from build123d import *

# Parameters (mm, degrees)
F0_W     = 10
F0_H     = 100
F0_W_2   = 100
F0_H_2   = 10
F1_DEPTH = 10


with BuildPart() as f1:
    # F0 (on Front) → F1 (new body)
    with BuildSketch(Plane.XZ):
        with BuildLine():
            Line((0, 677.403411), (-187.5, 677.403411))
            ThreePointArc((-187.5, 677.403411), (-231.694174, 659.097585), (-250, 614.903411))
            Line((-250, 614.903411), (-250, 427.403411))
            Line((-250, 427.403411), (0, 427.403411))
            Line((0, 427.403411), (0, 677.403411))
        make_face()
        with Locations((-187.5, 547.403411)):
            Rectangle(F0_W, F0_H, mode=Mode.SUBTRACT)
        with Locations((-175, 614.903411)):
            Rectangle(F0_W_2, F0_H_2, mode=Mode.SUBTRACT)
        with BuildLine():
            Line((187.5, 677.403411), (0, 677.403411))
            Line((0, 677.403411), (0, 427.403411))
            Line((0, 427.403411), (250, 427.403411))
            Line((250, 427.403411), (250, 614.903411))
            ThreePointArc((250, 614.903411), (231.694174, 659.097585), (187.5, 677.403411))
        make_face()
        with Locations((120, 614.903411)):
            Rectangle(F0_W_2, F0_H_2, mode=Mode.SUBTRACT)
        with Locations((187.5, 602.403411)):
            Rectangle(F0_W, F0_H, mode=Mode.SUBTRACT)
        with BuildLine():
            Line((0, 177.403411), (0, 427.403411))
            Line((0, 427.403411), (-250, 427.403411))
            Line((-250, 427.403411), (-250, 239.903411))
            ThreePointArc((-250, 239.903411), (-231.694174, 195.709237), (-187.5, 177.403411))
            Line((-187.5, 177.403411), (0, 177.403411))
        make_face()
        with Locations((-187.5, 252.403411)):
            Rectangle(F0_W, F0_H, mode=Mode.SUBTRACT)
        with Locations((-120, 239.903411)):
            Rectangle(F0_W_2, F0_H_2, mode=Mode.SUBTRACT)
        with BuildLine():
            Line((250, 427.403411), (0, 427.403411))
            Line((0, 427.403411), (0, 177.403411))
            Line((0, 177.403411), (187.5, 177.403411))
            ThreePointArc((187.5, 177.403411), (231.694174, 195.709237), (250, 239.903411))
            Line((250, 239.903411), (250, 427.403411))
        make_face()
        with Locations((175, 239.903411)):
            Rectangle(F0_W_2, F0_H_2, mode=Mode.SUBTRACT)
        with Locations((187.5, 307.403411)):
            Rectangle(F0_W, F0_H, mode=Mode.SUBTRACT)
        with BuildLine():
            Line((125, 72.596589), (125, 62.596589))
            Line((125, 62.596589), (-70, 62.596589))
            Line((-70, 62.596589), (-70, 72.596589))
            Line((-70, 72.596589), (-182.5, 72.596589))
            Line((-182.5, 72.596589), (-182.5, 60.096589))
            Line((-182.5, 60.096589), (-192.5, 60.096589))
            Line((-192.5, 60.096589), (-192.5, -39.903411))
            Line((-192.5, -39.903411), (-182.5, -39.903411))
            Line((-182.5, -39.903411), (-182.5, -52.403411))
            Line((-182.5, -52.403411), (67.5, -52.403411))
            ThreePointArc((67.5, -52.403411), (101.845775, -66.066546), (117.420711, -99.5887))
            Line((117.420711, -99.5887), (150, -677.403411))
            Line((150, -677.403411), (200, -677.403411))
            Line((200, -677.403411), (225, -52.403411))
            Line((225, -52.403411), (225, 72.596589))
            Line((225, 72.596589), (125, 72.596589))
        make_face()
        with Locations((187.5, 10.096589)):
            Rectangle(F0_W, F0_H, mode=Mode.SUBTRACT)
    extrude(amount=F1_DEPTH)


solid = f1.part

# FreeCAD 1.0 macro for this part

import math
import FreeCAD as App
import Part
import Sketcher

V = App.Vector
Q = App.Units.Quantity


def add_polygon(sketch, points):
    """Adds a closed chain of lines whose ends are joined by coincident constraints."""
    first, n = sketch.GeometryCount, len(points)
    for a, b in zip(points, points[1:] + points[:1]):
        sketch.addGeometry(Part.LineSegment(App.Vector(*a, 0), App.Vector(*b, 0)), False)
    for i in range(n):
        sketch.addConstraint(Sketcher.Constraint("Coincident", first + i, 2, first + (i + 1) % n, 1))

doc = App.newDocument("Part")
body = doc.addObject("PartDesign::Body", "Body")
body.AllowCompound = True

# Sketch on XZ plane
sketch1 = body.newObject("Sketcher::SketchObject", "Sketch")
sketch1.AttachmentSupport = (doc.getObject("XZ_Plane"), [""])
sketch1.MapMode = "FlatFace"
sketch1.addGeometry(Part.ArcOfCircle(Part.Circle(V(-188, 615, 0), V(0, 0, 1), 62), math.radians(90), math.radians(180)), False)  # 0
sketch1.addGeometry(Part.LineSegment(V(-250, 615, 0), V(-250, 240, 0)), False)  # 1
sketch1.addGeometry(Part.ArcOfCircle(Part.Circle(V(-188, 240, 0), V(0, 0, 1), 62), math.radians(180), math.radians(270)), False)  # 2
sketch1.addGeometry(Part.LineSegment(V(-188, 177, 0), V(188, 177, 0)), False)  # 3
sketch1.addGeometry(Part.ArcOfCircle(Part.Circle(V(188, 240, 0), V(0, 0, 1), 62), math.radians(-90), math.radians(0)), False)  # 4
sketch1.addGeometry(Part.LineSegment(V(250, 240, 0), V(250, 615, 0)), False)  # 5
sketch1.addGeometry(Part.ArcOfCircle(Part.Circle(V(188, 615, 0), V(0, 0, 1), 62), math.radians(0), math.radians(90)), False)  # 6
sketch1.addGeometry(Part.LineSegment(V(188, 677, 0), V(-188, 677, 0)), False)  # 7
add_polygon(sketch1, [(-182, 202), (-192, 202), (-192, 302), (-182, 302)])  # lines 8-11
add_polygon(sketch1, [(-70, 235), (-170, 235), (-170, 245), (-70, 245)])  # lines 12-15
add_polygon(sketch1, [(225, 235), (125, 235), (125, 245), (225, 245)])  # lines 16-19
add_polygon(sketch1, [(192, 257), (182, 257), (182, 357), (192, 357)])  # lines 20-23
add_polygon(sketch1, [(-182, 497), (-192, 497), (-192, 597), (-182, 597)])  # lines 24-27
add_polygon(sketch1, [(-125, 610), (-225, 610), (-225, 620), (-125, 620)])  # lines 28-31
add_polygon(sketch1, [(170, 610), (70, 610), (70, 620), (170, 620)])  # lines 32-35
add_polygon(sketch1, [(192, 552), (182, 552), (182, 652), (192, 652)])  # lines 36-39
sketch1.addGeometry(Part.LineSegment(V(125, 73, 0), V(125, 63, 0)), False)  # 40
sketch1.addGeometry(Part.LineSegment(V(125, 63, 0), V(-70, 63, 0)), False)  # 41
sketch1.addGeometry(Part.LineSegment(V(-70, 63, 0), V(-70, 73, 0)), False)  # 42
sketch1.addGeometry(Part.LineSegment(V(-70, 73, 0), V(-182, 73, 0)), False)  # 43
sketch1.addGeometry(Part.LineSegment(V(-182, 73, 0), V(-182, 60, 0)), False)  # 44
sketch1.addGeometry(Part.LineSegment(V(-182, 60, 0), V(-192, 60, 0)), False)  # 45
sketch1.addGeometry(Part.LineSegment(V(-192, 60, 0), V(-192, -40, 0)), False)  # 46
sketch1.addGeometry(Part.LineSegment(V(-192, -40, 0), V(-182, -40, 0)), False)  # 47
sketch1.addGeometry(Part.LineSegment(V(-182, -40, 0), V(-182, -52, 0)), False)  # 48
sketch1.addGeometry(Part.LineSegment(V(-182, -52, 0), V(68, -52, 0)), False)  # 49
sketch1.addGeometry(Part.ArcOfCircle(Part.Circle(V(68, -102, 0), V(0, 0, 1), 50), math.radians(3), math.radians(90)), False)  # 50
sketch1.addGeometry(Part.LineSegment(V(117, -100, 0), V(150, -677, 0)), False)  # 51
sketch1.addGeometry(Part.LineSegment(V(150, -677, 0), V(200, -677, 0)), False)  # 52
sketch1.addGeometry(Part.LineSegment(V(200, -677, 0), V(225, -52, 0)), False)  # 53
sketch1.addGeometry(Part.LineSegment(V(225, -52, 0), V(225, 73, 0)), False)  # 54
sketch1.addGeometry(Part.LineSegment(V(225, 73, 0), V(125, 73, 0)), False)  # 55
add_polygon(sketch1, [(192, -40), (182, -40), (182, 60), (192, 60)])  # lines 56-59
sketch1.addConstraint(Sketcher.Constraint("Tangent", 0, 2, 1, 1))
sketch1.addConstraint(Sketcher.Constraint("Tangent", 1, 2, 2, 1))
sketch1.addConstraint(Sketcher.Constraint("Tangent", 2, 2, 3, 1))
sketch1.addConstraint(Sketcher.Constraint("Tangent", 3, 2, 4, 1))
sketch1.addConstraint(Sketcher.Constraint("Tangent", 4, 2, 5, 1))
sketch1.addConstraint(Sketcher.Constraint("Tangent", 5, 2, 6, 1))
sketch1.addConstraint(Sketcher.Constraint("Tangent", 6, 2, 7, 1))
sketch1.addConstraint(Sketcher.Constraint("Tangent", 7, 2, 0, 1))
sketch1.addConstraint(Sketcher.Constraint("Coincident", 40, 2, 41, 1))
sketch1.addConstraint(Sketcher.Constraint("Coincident", 41, 2, 42, 1))
sketch1.addConstraint(Sketcher.Constraint("Coincident", 42, 2, 43, 1))
sketch1.addConstraint(Sketcher.Constraint("Coincident", 43, 2, 44, 1))
sketch1.addConstraint(Sketcher.Constraint("Coincident", 44, 2, 45, 1))
sketch1.addConstraint(Sketcher.Constraint("Coincident", 45, 2, 46, 1))
sketch1.addConstraint(Sketcher.Constraint("Coincident", 46, 2, 47, 1))
sketch1.addConstraint(Sketcher.Constraint("Coincident", 47, 2, 48, 1))
sketch1.addConstraint(Sketcher.Constraint("Coincident", 48, 2, 49, 1))
sketch1.addConstraint(Sketcher.Constraint("Tangent", 49, 2, 50, 2))
sketch1.addConstraint(Sketcher.Constraint("Tangent", 50, 1, 51, 1))
sketch1.addConstraint(Sketcher.Constraint("Coincident", 51, 2, 52, 1))
sketch1.addConstraint(Sketcher.Constraint("Coincident", 52, 2, 53, 1))
sketch1.addConstraint(Sketcher.Constraint("Coincident", 53, 2, 54, 1))
sketch1.addConstraint(Sketcher.Constraint("Coincident", 54, 2, 55, 1))
sketch1.addConstraint(Sketcher.Constraint("Coincident", 55, 2, 40, 1))
sketch1.addConstraint(Sketcher.Constraint("Vertical", 1))
sketch1.addConstraint(Sketcher.Constraint("Horizontal", 3))
sketch1.addConstraint(Sketcher.Constraint("Vertical", 5))
sketch1.addConstraint(Sketcher.Constraint("Horizontal", 7))
sketch1.addConstraint(Sketcher.Constraint("Horizontal", 8))
sketch1.addConstraint(Sketcher.Constraint("Vertical", 9))
sketch1.addConstraint(Sketcher.Constraint("Horizontal", 10))
sketch1.addConstraint(Sketcher.Constraint("Vertical", 11))
sketch1.addConstraint(Sketcher.Constraint("Horizontal", 12))
sketch1.addConstraint(Sketcher.Constraint("Vertical", 13))
sketch1.addConstraint(Sketcher.Constraint("Horizontal", 14))
sketch1.addConstraint(Sketcher.Constraint("Vertical", 15))
sketch1.addConstraint(Sketcher.Constraint("Horizontal", 16))
sketch1.addConstraint(Sketcher.Constraint("Vertical", 17))
sketch1.addConstraint(Sketcher.Constraint("Horizontal", 18))
sketch1.addConstraint(Sketcher.Constraint("Vertical", 19))
sketch1.addConstraint(Sketcher.Constraint("Horizontal", 20))
sketch1.addConstraint(Sketcher.Constraint("Vertical", 21))
sketch1.addConstraint(Sketcher.Constraint("Horizontal", 22))
sketch1.addConstraint(Sketcher.Constraint("Vertical", 23))
sketch1.addConstraint(Sketcher.Constraint("Horizontal", 24))
sketch1.addConstraint(Sketcher.Constraint("Vertical", 25))
sketch1.addConstraint(Sketcher.Constraint("Horizontal", 26))
sketch1.addConstraint(Sketcher.Constraint("Vertical", 27))
sketch1.addConstraint(Sketcher.Constraint("Horizontal", 28))
sketch1.addConstraint(Sketcher.Constraint("Vertical", 29))
sketch1.addConstraint(Sketcher.Constraint("Horizontal", 30))
sketch1.addConstraint(Sketcher.Constraint("Vertical", 31))
sketch1.addConstraint(Sketcher.Constraint("Horizontal", 32))
sketch1.addConstraint(Sketcher.Constraint("Vertical", 33))
sketch1.addConstraint(Sketcher.Constraint("Horizontal", 34))
sketch1.addConstraint(Sketcher.Constraint("Vertical", 35))
sketch1.addConstraint(Sketcher.Constraint("Horizontal", 36))
sketch1.addConstraint(Sketcher.Constraint("Vertical", 37))
sketch1.addConstraint(Sketcher.Constraint("Horizontal", 38))
sketch1.addConstraint(Sketcher.Constraint("Vertical", 39))
sketch1.addConstraint(Sketcher.Constraint("Vertical", 40))
sketch1.addConstraint(Sketcher.Constraint("Horizontal", 41))
sketch1.addConstraint(Sketcher.Constraint("Vertical", 42))
sketch1.addConstraint(Sketcher.Constraint("Horizontal", 43))
sketch1.addConstraint(Sketcher.Constraint("Vertical", 44))
sketch1.addConstraint(Sketcher.Constraint("Horizontal", 45))
sketch1.addConstraint(Sketcher.Constraint("Vertical", 46))
sketch1.addConstraint(Sketcher.Constraint("Horizontal", 47))
sketch1.addConstraint(Sketcher.Constraint("Vertical", 48))
sketch1.addConstraint(Sketcher.Constraint("Horizontal", 49))
sketch1.addConstraint(Sketcher.Constraint("Horizontal", 52))
sketch1.addConstraint(Sketcher.Constraint("Vertical", 54))
sketch1.addConstraint(Sketcher.Constraint("Horizontal", 55))
sketch1.addConstraint(Sketcher.Constraint("Horizontal", 56))
sketch1.addConstraint(Sketcher.Constraint("Vertical", 57))
sketch1.addConstraint(Sketcher.Constraint("Horizontal", 58))
sketch1.addConstraint(Sketcher.Constraint("Vertical", 59))
sketch1.addConstraint(Sketcher.Constraint("Equal", 0, 2))
sketch1.addConstraint(Sketcher.Constraint("Equal", 2, 4))
sketch1.addConstraint(Sketcher.Constraint("Equal", 4, 6))
sketch1.addConstraint(Sketcher.Constraint("Symmetric", 47, 2, 56, 2, -2))
sketch1.addConstraint(Sketcher.Constraint("Symmetric", 44, 2, 57, 2, -2))
sketch1.addConstraint(Sketcher.Constraint("Horizontal", 15, 2, 16, 2))
sketch1.addConstraint(Sketcher.Constraint("Horizontal", 14, 2, 17, 2))
sketch1.addConstraint(Sketcher.Constraint("Horizontal", 31, 2, 32, 2))
sketch1.addConstraint(Sketcher.Constraint("Horizontal", 30, 2, 33, 2))
sketch1.addConstraint(Sketcher.Constraint("Horizontal", 49, 2, 53, 2))
sketch1.addConstraint(Sketcher.Constraint("Horizontal", 43, 2, 54, 2))
sketch1.addConstraint(Sketcher.Constraint("Vertical", 9, 2, 24, 2))
sketch1.addConstraint(Sketcher.Constraint("Vertical", 11, 2, 26, 2))
sketch1.addConstraint(Sketcher.Constraint("Vertical", 21, 2, 36, 2))
sketch1.addConstraint(Sketcher.Constraint("Vertical", 23, 2, 38, 2))
sketch1.addConstraint(Sketcher.Constraint("Vertical", 17, 2, 40, 2))
sketch1.addConstraint(Sketcher.Constraint("Vertical", 15, 2, 41, 2))
sketch1.addConstraint(Sketcher.Constraint("Vertical", 27, 2, 43, 2))
sketch1.addConstraint(Sketcher.Constraint("Vertical", 25, 2, 45, 2))
sketch1.addConstraint(Sketcher.Constraint("Vertical", 19, 2, 53, 2))
sketch1.addConstraint(Sketcher.Constraint("Vertical", 37, 2, 56, 2))
sketch1.addConstraint(Sketcher.Constraint("Vertical", 39, 2, 58, 2))
sketch1.addConstraint(Sketcher.Constraint("Equal", 14, 16))
sketch1.addConstraint(Sketcher.Constraint("Equal", 10, 20))
sketch1.addConstraint(Sketcher.Constraint("Equal", 18, 28))
sketch1.addConstraint(Sketcher.Constraint("Equal", 30, 32))
sketch1.addConstraint(Sketcher.Constraint("Equal", 7, 1))
sketch1.addConstraint(Sketcher.Constraint("Equal", 55, 9))
sketch1.addConstraint(Sketcher.Constraint("Equal", 58, 13))
sketch1.addConstraint(Sketcher.Constraint("Equal", 11, 21))
sketch1.addConstraint(Sketcher.Constraint("Equal", 23, 25))
sketch1.addConstraint(Sketcher.Constraint("Equal", 19, 29))
sketch1.addConstraint(Sketcher.Constraint("Equal", 27, 37))
sketch1.addConstraint(Sketcher.Constraint("Equal", 35, 40))
sketch1.addConstraint(Sketcher.Constraint("Equal", 39, 46))
sketch1.addConstraint(Sketcher.Constraint("Equal", 44, 48))
sketch1.addConstraint(Sketcher.Constraint("Radius", 50, Q("49.999999 mm")))
sketch1.addConstraint(Sketcher.Constraint("Radius", 0, Q("62.499999 mm")))
sketch1.addConstraint(Sketcher.Constraint("DistanceX", 3, 1, 3, 2, Q("375 mm")))
sketch1.addConstraint(Sketcher.Constraint("DistanceX", 8, 2, 8, 1, Q("10 mm")))
sketch1.addConstraint(Sketcher.Constraint("DistanceX", 12, 2, 12, 1, Q("100 mm")))
sketch1.addConstraint(Sketcher.Constraint("DistanceX", 41, 2, 41, 1, Q("195 mm")))
sketch1.addConstraint(Sketcher.Constraint("DistanceX", 49, 1, 49, 2, Q("250 mm")))
sketch1.addConstraint(Sketcher.Constraint("DistanceX", 52, 1, 52, 2, Q("50 mm")))
sketch1.addConstraint(Sketcher.Constraint("DistanceY", 54, 1, 54, 2, Q("125 mm")))
sketch1.addConstraint(Sketcher.Constraint("DistanceX", 43, 2, 43, 1, Q("112.5 mm")))
sketch1.addConstraint(Sketcher.Constraint("DistanceX", 0, 2, -1, 1, Q("250 mm")))
sketch1.addConstraint(Sketcher.Constraint("DistanceX", 12, 2, -1, 1, Q("170 mm")))
sketch1.addConstraint(Sketcher.Constraint("DistanceX", 28, 2, -1, 1, Q("225 mm")))
sketch1.addConstraint(Sketcher.Constraint("DistanceX", -1, 1, 32, 2, Q("70 mm")))
sketch1.addConstraint(Sketcher.Constraint("DistanceX", -1, 1, 51, 2, Q("150 mm")))
sketch1.addConstraint(Sketcher.Constraint("Distance", 53, Q("625.4998 mm")))
sketch1.addConstraint(Sketcher.Constraint("DistanceY", 50, 1, -1, 1, Q("99.5887 mm")))
sketch1.addConstraint(Sketcher.Constraint("DistanceY", -1, 1, 0, 3, Q("614.903412 mm")))
sketch1.addConstraint(Sketcher.Constraint("DistanceY", -1, 1, 8, 2, Q("202.403411 mm")))
sketch1.addConstraint(Sketcher.Constraint("DistanceY", -1, 1, 12, 2, Q("234.903411 mm")))
sketch1.addConstraint(Sketcher.Constraint("DistanceY", -1, 1, 20, 2, Q("257.403411 mm")))
sketch1.addConstraint(Sketcher.Constraint("DistanceY", -1, 1, 24, 2, Q("497.403411 mm")))
sketch1.addConstraint(Sketcher.Constraint("DistanceY", -1, 1, 28, 2, Q("609.903411 mm")))
sketch1.addConstraint(Sketcher.Constraint("DistanceY", -1, 1, 36, 2, Q("552.403411 mm")))
pad1 = body.newObject("PartDesign::Pad", "Pad")
pad1.Profile = sketch1
pad1.Length = 10

doc.recompute()
